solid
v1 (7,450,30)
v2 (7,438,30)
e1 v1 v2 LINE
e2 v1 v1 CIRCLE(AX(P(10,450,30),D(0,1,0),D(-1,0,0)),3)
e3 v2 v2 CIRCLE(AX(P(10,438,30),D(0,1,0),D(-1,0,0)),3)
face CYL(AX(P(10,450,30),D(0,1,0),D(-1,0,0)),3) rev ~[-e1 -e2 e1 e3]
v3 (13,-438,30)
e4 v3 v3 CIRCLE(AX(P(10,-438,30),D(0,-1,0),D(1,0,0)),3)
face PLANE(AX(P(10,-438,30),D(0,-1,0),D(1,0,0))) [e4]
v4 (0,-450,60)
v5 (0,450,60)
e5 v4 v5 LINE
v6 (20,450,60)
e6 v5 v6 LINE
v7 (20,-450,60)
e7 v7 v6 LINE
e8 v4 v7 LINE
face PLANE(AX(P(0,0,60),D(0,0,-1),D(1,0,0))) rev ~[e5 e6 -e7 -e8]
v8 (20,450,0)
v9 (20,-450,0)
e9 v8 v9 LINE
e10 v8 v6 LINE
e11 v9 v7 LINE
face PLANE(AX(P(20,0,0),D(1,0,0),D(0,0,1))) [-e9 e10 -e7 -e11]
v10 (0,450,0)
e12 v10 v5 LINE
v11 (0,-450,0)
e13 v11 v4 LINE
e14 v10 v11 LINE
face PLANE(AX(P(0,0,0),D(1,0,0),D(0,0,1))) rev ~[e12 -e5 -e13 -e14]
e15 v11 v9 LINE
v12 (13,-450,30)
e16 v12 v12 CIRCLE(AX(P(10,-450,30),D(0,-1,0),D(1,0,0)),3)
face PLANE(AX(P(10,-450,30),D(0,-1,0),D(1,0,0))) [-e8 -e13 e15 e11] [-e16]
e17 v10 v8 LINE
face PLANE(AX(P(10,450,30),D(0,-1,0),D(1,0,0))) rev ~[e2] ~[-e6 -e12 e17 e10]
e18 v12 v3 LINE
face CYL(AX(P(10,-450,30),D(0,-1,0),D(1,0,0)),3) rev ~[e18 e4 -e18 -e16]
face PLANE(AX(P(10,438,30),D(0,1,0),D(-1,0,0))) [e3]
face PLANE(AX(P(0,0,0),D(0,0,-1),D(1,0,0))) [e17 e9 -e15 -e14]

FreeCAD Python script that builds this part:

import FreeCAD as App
import Part
import Sketcher
from FreeCAD import Vector
Q = App.Units.Quantity


def add_polygon(sketch, points):
    """Adds a closed chain of lines whose ends are joined by coincident constraints."""
    first, n = sketch.GeometryCount, len(points)
    for a, b in zip(points, points[1:] + points[:1]):
        sketch.addGeometry(Part.LineSegment(App.Vector(*a, 0), App.Vector(*b, 0)), False)
    for i in range(n):
        sketch.addConstraint(Sketcher.Constraint("Coincident", first + i, 2, first + (i + 1) % n, 1))

doc = App.newDocument("Part")
params = doc.addObject("Spreadsheet::Sheet", "Params")
for row, (alias, value) in enumerate([
    ("sketch1_width", "20 mm"),
    ("sketch1_height", "60 mm"),
    ("pad1_length", "900 mm"),
    ("sketch2_diameter", "6 mm"),
    ("pocket1_length", "12 mm"),
    ("sketch3_diameter", "6 mm"),
    ("pocket2_length", "12 mm"),
], start=1):
    params.set(f"A{row}", alias)
    params.set(f"B{row}", "=" + value)
    params.setAlias(f"B{row}", alias)

body = doc.addObject("PartDesign::Body", "Body")

sketch1 = body.newObject("Sketcher::SketchObject", "Sketch")
sketch1.AttachmentSupport = (doc.getObject("XZ_Plane"), [""])
sketch1.MapMode = "FlatFace"
add_polygon(sketch1, [(0, 60), (0, 0), (20, 0), (20, 60)])
sketch1.addConstraint(Sketcher.Constraint("Vertical", 0))
sketch1.addConstraint(Sketcher.Constraint("Horizontal", 1))
sketch1.addConstraint(Sketcher.Constraint("Vertical", 2))
sketch1.addConstraint(Sketcher.Constraint("Horizontal", 3))
sketch1.addConstraint(Sketcher.Constraint("Coincident", 0, 2, -1, 1))
sketch1.addConstraint(Sketcher.Constraint("DistanceX", 1, 1, 1, 2, Q("20 mm")))
sketch1.addConstraint(Sketcher.Constraint("DistanceY", 0, 2, 0, 1, Q("60 mm")))
sketch1.setExpression("Constraints[9]", "Params.sketch1_width")
sketch1.setExpression("Constraints[10]", "Params.sketch1_height")
pad1 = body.newObject("PartDesign::Pad", "Pad")
pad1.Profile = sketch1
pad1.setExpression("Length", "Params.pad1_length")
pad1.Midplane = True

sketch2 = body.newObject("Sketcher::SketchObject", "Sketch001")
sketch2.AttachmentSupport = (doc.getObject("XZ_Plane"), [""])
sketch2.MapMode = "FlatFace"
sketch2.AttachmentOffset = App.Placement(Vector(0, 0, -450), App.Rotation())
sketch2.addGeometry(Part.Circle(Vector(10, 30, 0), Vector(0, 0, 1), 3), False)
sketch2.addConstraint(Sketcher.Constraint("Diameter", 0, Q("6 mm")))
sketch2.addConstraint(Sketcher.Constraint("DistanceX", -1, 1, 0, 3, Q("10 mm")))
sketch2.addConstraint(Sketcher.Constraint("DistanceY", -1, 1, 0, 3, Q("30 mm")))
sketch2.setExpression("Constraints[0]", "Params.sketch2_diameter")
pocket1 = body.newObject("PartDesign::Pocket", "Pocket")
pocket1.Profile = sketch2
pocket1.setExpression("Length", "Params.pocket1_length")
pocket1.Reversed = True

sketch3 = body.newObject("Sketcher::SketchObject", "Sketch002")
sketch3.AttachmentSupport = (doc.getObject("XZ_Plane"), [""])
sketch3.MapMode = "FlatFace"
sketch3.AttachmentOffset = App.Placement(Vector(0, 0, 450), App.Rotation())
sketch3.addGeometry(Part.Circle(Vector(10, 30, 0), Vector(0, 0, 1), 3), False)
sketch3.addConstraint(Sketcher.Constraint("Diameter", 0, Q("6 mm")))
sketch3.addConstraint(Sketcher.Constraint("DistanceX", -1, 1, 0, 3, Q("10 mm")))
sketch3.addConstraint(Sketcher.Constraint("DistanceY", -1, 1, 0, 3, Q("30 mm")))
sketch3.setExpression("Constraints[0]", "Params.sketch3_diameter")
pocket2 = body.newObject("PartDesign::Pocket", "Pocket001")
pocket2.Profile = sketch3
pocket2.setExpression("Length", "Params.pocket2_length")

doc.recompute()
